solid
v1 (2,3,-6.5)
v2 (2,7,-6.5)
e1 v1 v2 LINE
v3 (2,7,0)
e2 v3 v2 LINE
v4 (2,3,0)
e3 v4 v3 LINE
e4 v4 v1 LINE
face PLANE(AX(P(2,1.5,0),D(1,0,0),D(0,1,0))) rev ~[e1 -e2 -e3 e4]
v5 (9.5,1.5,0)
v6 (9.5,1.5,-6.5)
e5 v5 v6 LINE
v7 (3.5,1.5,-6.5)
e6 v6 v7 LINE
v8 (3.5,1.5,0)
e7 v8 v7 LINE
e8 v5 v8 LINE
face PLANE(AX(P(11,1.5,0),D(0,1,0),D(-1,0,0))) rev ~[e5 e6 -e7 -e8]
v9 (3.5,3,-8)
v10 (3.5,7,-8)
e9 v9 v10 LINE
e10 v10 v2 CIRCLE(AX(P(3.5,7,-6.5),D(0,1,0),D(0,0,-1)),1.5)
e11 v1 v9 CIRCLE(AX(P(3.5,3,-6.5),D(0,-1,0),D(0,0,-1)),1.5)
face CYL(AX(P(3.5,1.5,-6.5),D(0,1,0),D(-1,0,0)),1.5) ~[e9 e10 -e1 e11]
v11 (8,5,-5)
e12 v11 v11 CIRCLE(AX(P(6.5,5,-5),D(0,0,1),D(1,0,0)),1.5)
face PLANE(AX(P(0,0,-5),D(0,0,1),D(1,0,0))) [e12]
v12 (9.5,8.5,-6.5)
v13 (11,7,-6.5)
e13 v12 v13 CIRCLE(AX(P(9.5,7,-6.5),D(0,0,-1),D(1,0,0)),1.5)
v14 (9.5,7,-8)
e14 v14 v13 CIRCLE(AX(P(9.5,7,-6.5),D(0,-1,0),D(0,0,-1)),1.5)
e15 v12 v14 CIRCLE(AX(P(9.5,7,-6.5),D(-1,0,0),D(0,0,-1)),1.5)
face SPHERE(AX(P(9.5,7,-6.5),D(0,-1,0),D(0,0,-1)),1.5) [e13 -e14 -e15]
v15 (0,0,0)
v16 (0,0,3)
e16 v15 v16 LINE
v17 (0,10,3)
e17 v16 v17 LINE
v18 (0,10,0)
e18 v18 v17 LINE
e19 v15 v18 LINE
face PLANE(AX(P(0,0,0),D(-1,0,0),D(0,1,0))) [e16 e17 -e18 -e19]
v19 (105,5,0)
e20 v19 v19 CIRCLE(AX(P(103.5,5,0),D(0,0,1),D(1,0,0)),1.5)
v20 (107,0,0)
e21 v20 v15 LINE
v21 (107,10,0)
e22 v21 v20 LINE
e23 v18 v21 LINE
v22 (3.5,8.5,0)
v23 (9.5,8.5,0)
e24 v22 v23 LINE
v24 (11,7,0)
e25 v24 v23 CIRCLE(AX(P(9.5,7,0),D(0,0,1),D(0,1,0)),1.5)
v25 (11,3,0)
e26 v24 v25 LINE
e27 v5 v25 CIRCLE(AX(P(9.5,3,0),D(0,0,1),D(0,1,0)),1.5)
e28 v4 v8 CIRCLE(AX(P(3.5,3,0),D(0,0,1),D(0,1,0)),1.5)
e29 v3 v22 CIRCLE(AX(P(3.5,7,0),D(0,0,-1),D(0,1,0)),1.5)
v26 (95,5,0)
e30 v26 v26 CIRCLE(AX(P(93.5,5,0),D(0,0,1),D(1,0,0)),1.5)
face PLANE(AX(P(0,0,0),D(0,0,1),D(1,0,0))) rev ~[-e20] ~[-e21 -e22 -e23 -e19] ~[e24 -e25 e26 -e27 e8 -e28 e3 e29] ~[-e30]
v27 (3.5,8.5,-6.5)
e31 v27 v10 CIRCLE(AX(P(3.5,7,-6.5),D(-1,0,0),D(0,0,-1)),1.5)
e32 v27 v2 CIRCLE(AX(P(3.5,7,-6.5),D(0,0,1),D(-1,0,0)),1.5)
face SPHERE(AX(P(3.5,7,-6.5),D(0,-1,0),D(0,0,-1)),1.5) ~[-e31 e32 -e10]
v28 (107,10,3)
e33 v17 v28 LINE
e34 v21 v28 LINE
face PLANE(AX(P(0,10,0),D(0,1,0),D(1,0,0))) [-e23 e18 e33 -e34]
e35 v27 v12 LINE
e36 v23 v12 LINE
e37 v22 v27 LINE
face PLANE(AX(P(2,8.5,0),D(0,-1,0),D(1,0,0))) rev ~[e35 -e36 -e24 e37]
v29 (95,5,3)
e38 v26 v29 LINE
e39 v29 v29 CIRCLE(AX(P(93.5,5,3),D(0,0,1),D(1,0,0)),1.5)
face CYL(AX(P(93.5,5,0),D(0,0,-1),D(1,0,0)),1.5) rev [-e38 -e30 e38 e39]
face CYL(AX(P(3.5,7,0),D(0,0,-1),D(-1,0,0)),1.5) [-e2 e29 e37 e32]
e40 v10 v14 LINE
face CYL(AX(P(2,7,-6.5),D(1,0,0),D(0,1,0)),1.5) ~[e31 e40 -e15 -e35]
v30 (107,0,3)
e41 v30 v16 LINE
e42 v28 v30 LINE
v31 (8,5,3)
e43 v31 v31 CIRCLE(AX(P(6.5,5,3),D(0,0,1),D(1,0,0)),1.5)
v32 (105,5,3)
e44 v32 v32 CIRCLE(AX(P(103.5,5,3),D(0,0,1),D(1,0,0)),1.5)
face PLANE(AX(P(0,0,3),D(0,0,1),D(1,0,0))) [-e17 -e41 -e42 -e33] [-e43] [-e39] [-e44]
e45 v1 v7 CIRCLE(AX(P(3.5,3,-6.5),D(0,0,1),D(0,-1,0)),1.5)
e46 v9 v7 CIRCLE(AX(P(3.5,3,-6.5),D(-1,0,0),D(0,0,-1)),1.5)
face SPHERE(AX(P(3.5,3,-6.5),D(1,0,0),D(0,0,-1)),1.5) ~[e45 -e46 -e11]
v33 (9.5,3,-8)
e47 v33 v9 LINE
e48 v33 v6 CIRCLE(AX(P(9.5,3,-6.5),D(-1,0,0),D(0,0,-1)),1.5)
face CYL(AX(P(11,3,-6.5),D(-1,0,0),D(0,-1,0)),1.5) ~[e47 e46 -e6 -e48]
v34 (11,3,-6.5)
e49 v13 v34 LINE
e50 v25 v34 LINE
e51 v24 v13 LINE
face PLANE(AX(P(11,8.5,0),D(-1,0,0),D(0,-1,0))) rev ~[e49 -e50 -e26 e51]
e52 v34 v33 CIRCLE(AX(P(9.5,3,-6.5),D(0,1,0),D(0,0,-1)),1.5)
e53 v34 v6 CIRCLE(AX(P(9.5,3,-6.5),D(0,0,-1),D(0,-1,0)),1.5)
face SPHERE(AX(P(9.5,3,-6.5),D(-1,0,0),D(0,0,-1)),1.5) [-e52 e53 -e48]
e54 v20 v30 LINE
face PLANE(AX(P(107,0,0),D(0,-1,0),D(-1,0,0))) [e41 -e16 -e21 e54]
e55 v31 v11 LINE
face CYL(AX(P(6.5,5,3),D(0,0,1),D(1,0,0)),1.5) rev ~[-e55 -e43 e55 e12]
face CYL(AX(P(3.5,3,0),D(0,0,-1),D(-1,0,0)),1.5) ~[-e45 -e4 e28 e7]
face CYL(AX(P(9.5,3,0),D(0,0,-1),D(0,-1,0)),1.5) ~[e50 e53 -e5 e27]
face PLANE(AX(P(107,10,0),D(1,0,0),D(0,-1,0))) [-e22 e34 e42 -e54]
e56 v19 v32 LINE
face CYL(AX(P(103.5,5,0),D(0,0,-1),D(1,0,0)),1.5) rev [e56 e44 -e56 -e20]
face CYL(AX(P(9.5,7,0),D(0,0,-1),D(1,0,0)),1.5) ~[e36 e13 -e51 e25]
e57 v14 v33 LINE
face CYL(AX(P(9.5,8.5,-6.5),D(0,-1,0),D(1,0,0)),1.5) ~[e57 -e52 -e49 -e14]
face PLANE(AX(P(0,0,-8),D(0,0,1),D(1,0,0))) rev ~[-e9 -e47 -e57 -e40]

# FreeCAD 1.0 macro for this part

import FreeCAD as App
import Part
import Sketcher


def edges_at(feature, points):
    """Names of the edges that pass closest to the given points."""
    edges = feature.Shape.Edges
    near = lambda p: min(range(len(edges)), key=lambda i: edges[i].distToShape(Part.Vertex(*p))[0])
    return sorted({f"Edge{near(p) + 1}" for p in points})

doc = App.newDocument("Part")
params = doc.addObject("Spreadsheet::Sheet", "Params")
for row, (alias, value) in enumerate([
    ("sketch1_diameter", "3 mm"),
    ("sketch1_width", "107 mm"),
    ("sketch1_height", "10 mm"),
    ("pad1_length", "3 mm"),
    ("sketch2_width", "9 mm"),
    ("sketch2_height", "7 mm"),
    ("pad2_length", "8 mm"),
    ("sketch3_diameter", "3 mm"),
    ("pocket1_length", "8 mm"),
    ("fillet_radius", "1.5 mm"),
], start=1):
    params.set(f"A{row}", alias)
    params.set(f"B{row}", "=" + value)
    params.setAlias(f"B{row}", alias)

body = doc.addObject("PartDesign::Body", "Body")

# Sketch on XY plane
sketch1 = doc.addObject("Sketcher::SketchObject", "Sketch")
body.addObject(sketch1)
sketch1.AttachmentSupport = (doc.XY_Plane, [""])
sketch1.MapMode = "FlatFace"
sketch1.addGeometry([
    Part.LineSegment(App.Vector(107, 10, 0), App.Vector(0, 10, 0)),  # 0
    Part.LineSegment(App.Vector(0, 10, 0), App.Vector(0, 0, 0)),  # 1
    Part.LineSegment(App.Vector(0, 0, 0), App.Vector(107, 0, 0)),  # 2
    Part.LineSegment(App.Vector(107, 0, 0), App.Vector(107, 10, 0)),  # 3
    Part.Circle(App.Vector(93.5, 5, 0), App.Vector(0, 0, 1), 1.5),  # 4
    Part.Circle(App.Vector(103.5, 5, 0), App.Vector(0, 0, 1), 1.5),  # 5
], False)
sketch1.addConstraint([
    Sketcher.Constraint("Coincident", 0, 2, 1, 1),
    Sketcher.Constraint("Coincident", 1, 2, 2, 1),
    Sketcher.Constraint("Coincident", 2, 2, 3, 1),
    Sketcher.Constraint("Coincident", 3, 2, 0, 1),
    Sketcher.Constraint("Horizontal", 0),
    Sketcher.Constraint("Vertical", 1),
    Sketcher.Constraint("Horizontal", 2),
    Sketcher.Constraint("Vertical", 3),
    Sketcher.Constraint("Coincident", 1, 2, -1, 1),
    Sketcher.Constraint("Equal", 4, 5),
    Sketcher.Constraint("Horizontal", 4, 3, 5, 3),
    Sketcher.Constraint("Diameter", 4, 3.0),
    Sketcher.Constraint("DistanceX", 0, 2, 0, 1, 107.0),
    Sketcher.Constraint("DistanceY", 1, 2, 1, 1, 10.0),
    Sketcher.Constraint("DistanceY", -1, 1, 4, 3, 5.0),
    Sketcher.Constraint("DistanceX", 4, 3, 5, 3, 10.0),
    Sketcher.Constraint("DistanceX", 5, 3, 2, 2, 3.5),
])
sketch1.setExpression("Constraints[11]", "Params.sketch1_diameter")
sketch1.setExpression("Constraints[12]", "Params.sketch1_width")
sketch1.setExpression("Constraints[13]", "Params.sketch1_height")
pad1 = doc.addObject("PartDesign::Pad", "Pad")
body.addObject(pad1)
pad1.Profile = sketch1
pad1.setExpression("Length", "Params.pad1_length")

# Sketch on XY plane
sketch2 = doc.addObject("Sketcher::SketchObject", "Sketch001")
body.addObject(sketch2)
sketch2.AttachmentSupport = (doc.XY_Plane, [""])
sketch2.MapMode = "FlatFace"
sketch2.addGeometry([
    Part.LineSegment(App.Vector(11, 8, 0), App.Vector(2, 8, 0)),
    Part.LineSegment(App.Vector(2, 8, 0), App.Vector(2, 2, 0)),
    Part.LineSegment(App.Vector(2, 2, 0), App.Vector(11, 2, 0)),
    Part.LineSegment(App.Vector(11, 2, 0), App.Vector(11, 8, 0)),
], False)
sketch2.addConstraint([
    Sketcher.Constraint("Coincident", 0, 2, 1, 1),
    Sketcher.Constraint("Coincident", 1, 2, 2, 1),
    Sketcher.Constraint("Coincident", 2, 2, 3, 1),
    Sketcher.Constraint("Coincident", 3, 2, 0, 1),
    Sketcher.Constraint("Horizontal", 0),
    Sketcher.Constraint("Vertical", 1),
    Sketcher.Constraint("Horizontal", 2),
    Sketcher.Constraint("Vertical", 3),
    Sketcher.Constraint("DistanceX", 0, 2, 0, 1, 9.0),
    Sketcher.Constraint("DistanceY", 1, 2, 1, 1, 7.0),
    Sketcher.Constraint("DistanceX", -1, 1, 0, 2, 2.0),
    Sketcher.Constraint("DistanceY", -1, 1, 1, 2, 1.5),
])
sketch2.setExpression("Constraints[8]", "Params.sketch2_width")
sketch2.setExpression("Constraints[9]", "Params.sketch2_height")
pad2 = doc.addObject("PartDesign::Pad", "Pad001")
body.addObject(pad2)
pad2.Profile = sketch2
pad2.setExpression("Length", "Params.pad2_length")
pad2.Reversed = True

# Sketch on XY plane
sketch3 = doc.addObject("Sketcher::SketchObject", "Sketch002")
body.addObject(sketch3)
sketch3.AttachmentSupport = (doc.XY_Plane, [""])
sketch3.MapMode = "FlatFace"
sketch3.AttachmentOffset = App.Placement(App.Vector(0, 0, 3), App.Rotation())
sketch3.addGeometry(Part.Circle(App.Vector(6.5, 5, 0), App.Vector(0, 0, 1), 1.5), False)
sketch3.addConstraint([
    Sketcher.Constraint("Diameter", 0, 3.0),
    Sketcher.Constraint("DistanceY", -1, 1, 0, 3, 5.0),
    Sketcher.Constraint("DistanceX", -1, 1, 0, 3, 6.5),
])
sketch3.setExpression("Constraints[0]", "Params.sketch3_diameter")
pocket1 = doc.addObject("PartDesign::Pocket", "Pocket")
body.addObject(pocket1)
pocket1.Profile = sketch3
pocket1.setExpression("Length", "Params.pocket1_length")
doc.recompute()

fillet = doc.addObject("PartDesign::Fillet", "Fillet")
body.addObject(fillet)
fillet.Base = (pocket1, edges_at(pocket1, [
    (6.5, 1.5, -8),
    (2, 5, -8),
    (11, 5, -8),
    (6.5, 8.5, -8),
    (11, 1.5, -4),
    (2, 1.5, -4),
    (2, 8.5, -4),
    (11, 8.5, -4),
]))
fillet.setExpression("Radius", "Params.fillet_radius")

doc.recompute()
